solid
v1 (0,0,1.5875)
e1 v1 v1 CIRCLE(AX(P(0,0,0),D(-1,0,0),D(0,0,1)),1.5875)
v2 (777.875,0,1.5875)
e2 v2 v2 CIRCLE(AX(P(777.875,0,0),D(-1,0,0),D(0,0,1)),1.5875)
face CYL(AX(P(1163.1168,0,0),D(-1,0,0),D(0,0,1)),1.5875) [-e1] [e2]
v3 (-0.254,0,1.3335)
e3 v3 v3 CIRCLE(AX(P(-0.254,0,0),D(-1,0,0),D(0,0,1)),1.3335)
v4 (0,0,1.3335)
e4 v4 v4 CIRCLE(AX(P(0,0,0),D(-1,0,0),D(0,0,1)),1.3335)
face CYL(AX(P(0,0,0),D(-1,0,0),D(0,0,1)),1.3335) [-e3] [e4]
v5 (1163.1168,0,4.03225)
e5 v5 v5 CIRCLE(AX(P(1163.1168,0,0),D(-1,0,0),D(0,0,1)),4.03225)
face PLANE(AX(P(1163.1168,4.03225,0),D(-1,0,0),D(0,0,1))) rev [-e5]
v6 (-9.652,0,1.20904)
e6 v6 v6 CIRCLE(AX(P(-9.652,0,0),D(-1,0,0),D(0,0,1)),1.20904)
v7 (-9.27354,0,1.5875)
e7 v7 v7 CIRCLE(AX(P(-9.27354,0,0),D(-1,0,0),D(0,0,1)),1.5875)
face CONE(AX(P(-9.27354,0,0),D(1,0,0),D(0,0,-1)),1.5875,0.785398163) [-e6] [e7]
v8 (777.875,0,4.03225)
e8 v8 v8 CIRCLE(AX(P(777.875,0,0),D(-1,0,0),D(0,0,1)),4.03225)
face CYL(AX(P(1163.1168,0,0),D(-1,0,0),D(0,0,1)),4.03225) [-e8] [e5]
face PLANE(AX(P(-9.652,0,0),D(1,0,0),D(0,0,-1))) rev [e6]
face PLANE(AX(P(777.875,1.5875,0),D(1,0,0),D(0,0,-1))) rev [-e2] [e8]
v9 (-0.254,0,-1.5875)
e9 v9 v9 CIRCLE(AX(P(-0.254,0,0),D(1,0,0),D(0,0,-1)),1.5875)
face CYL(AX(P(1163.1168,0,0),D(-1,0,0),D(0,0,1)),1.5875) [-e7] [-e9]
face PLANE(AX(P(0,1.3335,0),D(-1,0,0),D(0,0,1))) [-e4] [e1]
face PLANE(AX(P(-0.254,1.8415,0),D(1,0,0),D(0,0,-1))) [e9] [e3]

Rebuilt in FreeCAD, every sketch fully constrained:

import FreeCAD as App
import Part
import Sketcher

V = App.Vector
Q = App.Units.Quantity


def add_polygon(sketch, points):
    """Adds a closed chain of lines whose ends are joined by coincident constraints."""
    first, n = sketch.GeometryCount, len(points)
    for a, b in zip(points, points[1:] + points[:1]):
        sketch.addGeometry(Part.LineSegment(App.Vector(*a, 0), App.Vector(*b, 0)), False)
    for i in range(n):
        sketch.addConstraint(Sketcher.Constraint("Coincident", first + i, 2, first + (i + 1) % n, 1))

doc = App.newDocument("Part")
params = doc.addObject("Spreadsheet::Sheet", "Params")
for row, (alias, value) in enumerate([
    ("sketch1_width", "45.792 in"),
    ("sketch1_width2", "15.167 in"),
    ("sketch1_height", "0.0625 in"),
    ("revolution_angle", "360 deg"),
    ("sketch2_width", "0.38 in"),
    ("sketch2_height", "0.0625 in"),
    ("revolution2_angle", "360 deg"),
    ("sketch3_width", "0.01 in"),
    ("sketch3_height", "0.02 in"),
    ("groove_angle", "360 deg"),
], start=1):
    params.set(f"A{row}", alias)
    params.set(f"B{row}", "=" + value)
    params.setAlias(f"B{row}", alias)

body = doc.addObject("PartDesign::Body", "Body")

sketch1 = body.newObject("Sketcher::SketchObject", "Sketch")
sketch1.AttachmentSupport = (doc.getObject("XY_Plane"), [""])
sketch1.MapMode = "FlatFace"
add_polygon(sketch1, [(0, 1.6), (0, 0), (1163.1, 0), (1163.1, 4), (777.9, 4), (777.9, 1.6)])
sketch1.addConstraint(Sketcher.Constraint("Vertical", 0))
sketch1.addConstraint(Sketcher.Constraint("Horizontal", 1))
sketch1.addConstraint(Sketcher.Constraint("Vertical", 2))
sketch1.addConstraint(Sketcher.Constraint("Horizontal", 3))
sketch1.addConstraint(Sketcher.Constraint("Vertical", 4))
sketch1.addConstraint(Sketcher.Constraint("Horizontal", 5))
sketch1.addConstraint(Sketcher.Constraint("Coincident", 0, 2, -1, 1))
sketch1.addConstraint(Sketcher.Constraint("DistanceX", 1, 1, 1, 2, Q("45.792 in")))
sketch1.addConstraint(Sketcher.Constraint("DistanceX", 3, 2, 3, 1, Q("15.167 in")))
sketch1.addConstraint(Sketcher.Constraint("DistanceY", 0, 2, 0, 1, Q("0.0625 in")))
sketch1.addConstraint(Sketcher.Constraint("DistanceY", 2, 1, 2, 2, 4.03225))
sketch1.setExpression("Constraints[13]", "Params.sketch1_width")
sketch1.setExpression("Constraints[14]", "Params.sketch1_width2")
sketch1.setExpression("Constraints[15]", "Params.sketch1_height")
revolution = body.newObject("PartDesign::Revolution", "Revolution")
revolution.Profile = sketch1
revolution.ReferenceAxis = (sketch1, ["H_Axis"])
revolution.setExpression("Angle", "Params.revolution_angle")

sketch2 = body.newObject("Sketcher::SketchObject", "Sketch001")
sketch2.AttachmentSupport = (doc.getObject("XY_Plane"), [""])
sketch2.MapMode = "FlatFace"
add_polygon(sketch2, [(-9.7, 1.2), (-9.7, 0), (0, 0), (0, 1.6), (-9.3, 1.6)])
sketch2.addConstraint(Sketcher.Constraint("Vertical", 0))
sketch2.addConstraint(Sketcher.Constraint("Horizontal", 1))
sketch2.addConstraint(Sketcher.Constraint("Vertical", 2))
sketch2.addConstraint(Sketcher.Constraint("Horizontal", 3))
sketch2.addConstraint(Sketcher.Constraint("Coincident", 1, 2, -1, 1))
sketch2.addConstraint(Sketcher.Constraint("Angle", 4, Q("-135 deg")))
sketch2.addConstraint(Sketcher.Constraint("DistanceX", 1, 1, 1, 2, Q("0.38 in")))
sketch2.addConstraint(Sketcher.Constraint("DistanceY", 2, 1, 2, 2, Q("0.0625 in")))
sketch2.addConstraint(Sketcher.Constraint("DistanceX", 3, 2, 3, 1, Q("0.3651 in")))
sketch2.setExpression("Constraints[11]", "Params.sketch2_width")
sketch2.setExpression("Constraints[12]", "Params.sketch2_height")
revolution2 = body.newObject("PartDesign::Revolution", "Revolution001")
revolution2.Profile = sketch2
revolution2.ReferenceAxis = (sketch2, ["H_Axis"])
revolution2.setExpression("Angle", "Params.revolution2_angle")

sketch3 = body.newObject("Sketcher::SketchObject", "Sketch002")
sketch3.AttachmentSupport = (doc.getObject("XY_Plane"), [""])
sketch3.MapMode = "FlatFace"
add_polygon(sketch3, [(-0.25, 1.84), (-0.25, 1.33), (0, 1.33), (0, 1.84)])
sketch3.addConstraint(Sketcher.Constraint("Vertical", 0))
sketch3.addConstraint(Sketcher.Constraint("Horizontal", 1))
sketch3.addConstraint(Sketcher.Constraint("Vertical", 2))
sketch3.addConstraint(Sketcher.Constraint("Horizontal", 3))
sketch3.addConstraint(Sketcher.Constraint("PointOnObject", 1, 2, -2))
sketch3.addConstraint(Sketcher.Constraint("DistanceX", 1, 1, 1, 2, Q("0.01 in")))
sketch3.addConstraint(Sketcher.Constraint("DistanceY", 0, 2, 0, 1, Q("0.02 in")))
sketch3.addConstraint(Sketcher.Constraint("DistanceY", -1, 1, 0, 2, Q("0.0525 in")))
sketch3.setExpression("Constraints[9]", "Params.sketch3_width")
sketch3.setExpression("Constraints[10]", "Params.sketch3_height")
groove = body.newObject("PartDesign::Groove", "Groove")
groove.Profile = sketch3
groove.ReferenceAxis = (sketch3, ["H_Axis"])
groove.setExpression("Angle", "Params.groove_angle")

doc.recompute()
